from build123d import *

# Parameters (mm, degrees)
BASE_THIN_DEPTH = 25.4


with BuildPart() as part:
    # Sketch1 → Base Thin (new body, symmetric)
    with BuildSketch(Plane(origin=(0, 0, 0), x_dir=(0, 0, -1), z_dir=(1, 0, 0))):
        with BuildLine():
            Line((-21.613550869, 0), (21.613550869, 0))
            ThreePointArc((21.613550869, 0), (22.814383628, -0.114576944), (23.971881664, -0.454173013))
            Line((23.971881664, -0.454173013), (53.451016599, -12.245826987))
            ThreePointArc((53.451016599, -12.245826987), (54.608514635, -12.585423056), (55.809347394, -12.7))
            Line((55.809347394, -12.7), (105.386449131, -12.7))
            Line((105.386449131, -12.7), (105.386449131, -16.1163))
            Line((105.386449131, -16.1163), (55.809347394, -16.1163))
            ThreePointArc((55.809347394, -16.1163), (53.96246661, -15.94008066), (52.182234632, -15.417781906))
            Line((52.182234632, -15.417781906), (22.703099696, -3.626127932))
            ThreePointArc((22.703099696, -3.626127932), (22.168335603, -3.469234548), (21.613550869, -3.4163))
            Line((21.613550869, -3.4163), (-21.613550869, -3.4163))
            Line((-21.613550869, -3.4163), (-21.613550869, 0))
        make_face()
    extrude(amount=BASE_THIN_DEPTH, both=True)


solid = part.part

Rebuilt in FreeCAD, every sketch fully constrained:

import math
import FreeCAD as App
import Part
import Sketcher
from FreeCAD import Vector
Q = App.Units.Quantity

doc = App.newDocument("Part")
params = doc.addObject("Spreadsheet::Sheet", "Params")
for row, (alias, value) in enumerate([
    ("sketch1_radius", "0.25 in"),
    ("sketch1_length", "1.25 in"),
    ("pad1_length", "2 in"),
], start=1):
    params.set(f"A{row}", alias)
    params.set(f"B{row}", "=" + value)
    params.setAlias(f"B{row}", alias)

body = doc.addObject("PartDesign::Body", "Body")

sketch1 = body.newObject("Sketcher::SketchObject", "Sketch")
sketch1.AttachmentSupport = (doc.getObject("YZ_Plane"), [""])
sketch1.MapMode = "FlatFace"
sketch1.addGeometry([
    Part.LineSegment(Vector(0, -21.6, 0), Vector(0, 21.6, 0)),
    Part.LineSegment(Vector(0, 21.6, 0), Vector(-3.4, 21.6, 0)),
    Part.LineSegment(Vector(-3.4, 21.6, 0), Vector(-3.4, -21.6, 0)),
    Part.ArcOfCircle(Part.Circle(Vector(-6.3, -21.6, 0), Vector(0, 0, 1), 2.9), math.radians(-22), math.radians(0)),
    Part.LineSegment(Vector(-3.6, -22.7, 0), Vector(-15.4, -52.2, 0)),
    Part.ArcOfCircle(Part.Circle(Vector(-6.4, -55.8, 0), Vector(0, 0, 1), 9.8), math.radians(158), math.radians(180)),
    Part.LineSegment(Vector(-16.1, -55.8, 0), Vector(-16.1, -105.4, 0)),
    Part.LineSegment(Vector(-16.1, -105.4, 0), Vector(-12.7, -105.4, 0)),
    Part.LineSegment(Vector(-12.7, -105.4, 0), Vector(-12.7, -55.8, 0)),
    Part.ArcOfCircle(Part.Circle(Vector(-6.4, -55.8, 0), Vector(0, 0, 1), 6.3), math.radians(158), math.radians(180)),
    Part.LineSegment(Vector(-12.2, -53.5, 0), Vector(-0.5, -24, 0)),
    Part.ArcOfCircle(Part.Circle(Vector(-6.3, -21.6, 0), Vector(0, 0, 1), 6.3), math.radians(-22), math.radians(0)),
], False)
sketch1.addConstraint([
    Sketcher.Constraint("Coincident", 0, 2, 1, 1),
    Sketcher.Constraint("Coincident", 1, 2, 2, 1),
    Sketcher.Constraint("Tangent", 2, 2, 3, 2),
    Sketcher.Constraint("Tangent", 3, 1, 4, 1),
    Sketcher.Constraint("Tangent", 4, 2, 5, 1),
    Sketcher.Constraint("Tangent", 5, 2, 6, 1),
    Sketcher.Constraint("Coincident", 6, 2, 7, 1),
    Sketcher.Constraint("Coincident", 7, 2, 8, 1),
    Sketcher.Constraint("Tangent", 8, 2, 9, 2),
    Sketcher.Constraint("Tangent", 9, 1, 10, 1),
    Sketcher.Constraint("Tangent", 10, 2, 11, 1),
    Sketcher.Constraint("Tangent", 11, 2, 0, 1),
    Sketcher.Constraint("Vertical", 0),
    Sketcher.Constraint("Horizontal", 1),
    Sketcher.Constraint("Vertical", 2),
    Sketcher.Constraint("Vertical", 6),
    Sketcher.Constraint("Horizontal", 7),
    Sketcher.Constraint("Vertical", 8),
    Sketcher.Constraint("Coincident", 9, 3, 5, 3),
    Sketcher.Constraint("Coincident", 11, 3, 3, 3),
    Sketcher.Constraint("Equal", 9, 11),
    Sketcher.Constraint("Symmetric", 0, 2, 11, 2, -1, 1),
    Sketcher.Constraint("Parallel", 4, 10),
    Sketcher.Constraint("Vertical", 3, 3, 5, 3),
    Sketcher.Constraint("Radius", 9, Q("0.25 in")),
    Sketcher.Constraint("Radius", 3, Q("0.1155 in")),
    Sketcher.Constraint("Distance", 4, Q("1.25 in")),
    Sketcher.Constraint("DistanceY", 0, 1, 0, 2, 43.227102),
    Sketcher.Constraint("DistanceY", 6, 2, 6, 1, 49.577102),
])
sketch1.setExpression("Constraints[24]", "Params.sketch1_radius")
sketch1.setExpression("Constraints[26]", "Params.sketch1_length")
pad1 = body.newObject("PartDesign::Pad", "Pad")
pad1.Profile = sketch1
pad1.setExpression("Length", "Params.pad1_length")
pad1.Midplane = True

doc.recompute()
